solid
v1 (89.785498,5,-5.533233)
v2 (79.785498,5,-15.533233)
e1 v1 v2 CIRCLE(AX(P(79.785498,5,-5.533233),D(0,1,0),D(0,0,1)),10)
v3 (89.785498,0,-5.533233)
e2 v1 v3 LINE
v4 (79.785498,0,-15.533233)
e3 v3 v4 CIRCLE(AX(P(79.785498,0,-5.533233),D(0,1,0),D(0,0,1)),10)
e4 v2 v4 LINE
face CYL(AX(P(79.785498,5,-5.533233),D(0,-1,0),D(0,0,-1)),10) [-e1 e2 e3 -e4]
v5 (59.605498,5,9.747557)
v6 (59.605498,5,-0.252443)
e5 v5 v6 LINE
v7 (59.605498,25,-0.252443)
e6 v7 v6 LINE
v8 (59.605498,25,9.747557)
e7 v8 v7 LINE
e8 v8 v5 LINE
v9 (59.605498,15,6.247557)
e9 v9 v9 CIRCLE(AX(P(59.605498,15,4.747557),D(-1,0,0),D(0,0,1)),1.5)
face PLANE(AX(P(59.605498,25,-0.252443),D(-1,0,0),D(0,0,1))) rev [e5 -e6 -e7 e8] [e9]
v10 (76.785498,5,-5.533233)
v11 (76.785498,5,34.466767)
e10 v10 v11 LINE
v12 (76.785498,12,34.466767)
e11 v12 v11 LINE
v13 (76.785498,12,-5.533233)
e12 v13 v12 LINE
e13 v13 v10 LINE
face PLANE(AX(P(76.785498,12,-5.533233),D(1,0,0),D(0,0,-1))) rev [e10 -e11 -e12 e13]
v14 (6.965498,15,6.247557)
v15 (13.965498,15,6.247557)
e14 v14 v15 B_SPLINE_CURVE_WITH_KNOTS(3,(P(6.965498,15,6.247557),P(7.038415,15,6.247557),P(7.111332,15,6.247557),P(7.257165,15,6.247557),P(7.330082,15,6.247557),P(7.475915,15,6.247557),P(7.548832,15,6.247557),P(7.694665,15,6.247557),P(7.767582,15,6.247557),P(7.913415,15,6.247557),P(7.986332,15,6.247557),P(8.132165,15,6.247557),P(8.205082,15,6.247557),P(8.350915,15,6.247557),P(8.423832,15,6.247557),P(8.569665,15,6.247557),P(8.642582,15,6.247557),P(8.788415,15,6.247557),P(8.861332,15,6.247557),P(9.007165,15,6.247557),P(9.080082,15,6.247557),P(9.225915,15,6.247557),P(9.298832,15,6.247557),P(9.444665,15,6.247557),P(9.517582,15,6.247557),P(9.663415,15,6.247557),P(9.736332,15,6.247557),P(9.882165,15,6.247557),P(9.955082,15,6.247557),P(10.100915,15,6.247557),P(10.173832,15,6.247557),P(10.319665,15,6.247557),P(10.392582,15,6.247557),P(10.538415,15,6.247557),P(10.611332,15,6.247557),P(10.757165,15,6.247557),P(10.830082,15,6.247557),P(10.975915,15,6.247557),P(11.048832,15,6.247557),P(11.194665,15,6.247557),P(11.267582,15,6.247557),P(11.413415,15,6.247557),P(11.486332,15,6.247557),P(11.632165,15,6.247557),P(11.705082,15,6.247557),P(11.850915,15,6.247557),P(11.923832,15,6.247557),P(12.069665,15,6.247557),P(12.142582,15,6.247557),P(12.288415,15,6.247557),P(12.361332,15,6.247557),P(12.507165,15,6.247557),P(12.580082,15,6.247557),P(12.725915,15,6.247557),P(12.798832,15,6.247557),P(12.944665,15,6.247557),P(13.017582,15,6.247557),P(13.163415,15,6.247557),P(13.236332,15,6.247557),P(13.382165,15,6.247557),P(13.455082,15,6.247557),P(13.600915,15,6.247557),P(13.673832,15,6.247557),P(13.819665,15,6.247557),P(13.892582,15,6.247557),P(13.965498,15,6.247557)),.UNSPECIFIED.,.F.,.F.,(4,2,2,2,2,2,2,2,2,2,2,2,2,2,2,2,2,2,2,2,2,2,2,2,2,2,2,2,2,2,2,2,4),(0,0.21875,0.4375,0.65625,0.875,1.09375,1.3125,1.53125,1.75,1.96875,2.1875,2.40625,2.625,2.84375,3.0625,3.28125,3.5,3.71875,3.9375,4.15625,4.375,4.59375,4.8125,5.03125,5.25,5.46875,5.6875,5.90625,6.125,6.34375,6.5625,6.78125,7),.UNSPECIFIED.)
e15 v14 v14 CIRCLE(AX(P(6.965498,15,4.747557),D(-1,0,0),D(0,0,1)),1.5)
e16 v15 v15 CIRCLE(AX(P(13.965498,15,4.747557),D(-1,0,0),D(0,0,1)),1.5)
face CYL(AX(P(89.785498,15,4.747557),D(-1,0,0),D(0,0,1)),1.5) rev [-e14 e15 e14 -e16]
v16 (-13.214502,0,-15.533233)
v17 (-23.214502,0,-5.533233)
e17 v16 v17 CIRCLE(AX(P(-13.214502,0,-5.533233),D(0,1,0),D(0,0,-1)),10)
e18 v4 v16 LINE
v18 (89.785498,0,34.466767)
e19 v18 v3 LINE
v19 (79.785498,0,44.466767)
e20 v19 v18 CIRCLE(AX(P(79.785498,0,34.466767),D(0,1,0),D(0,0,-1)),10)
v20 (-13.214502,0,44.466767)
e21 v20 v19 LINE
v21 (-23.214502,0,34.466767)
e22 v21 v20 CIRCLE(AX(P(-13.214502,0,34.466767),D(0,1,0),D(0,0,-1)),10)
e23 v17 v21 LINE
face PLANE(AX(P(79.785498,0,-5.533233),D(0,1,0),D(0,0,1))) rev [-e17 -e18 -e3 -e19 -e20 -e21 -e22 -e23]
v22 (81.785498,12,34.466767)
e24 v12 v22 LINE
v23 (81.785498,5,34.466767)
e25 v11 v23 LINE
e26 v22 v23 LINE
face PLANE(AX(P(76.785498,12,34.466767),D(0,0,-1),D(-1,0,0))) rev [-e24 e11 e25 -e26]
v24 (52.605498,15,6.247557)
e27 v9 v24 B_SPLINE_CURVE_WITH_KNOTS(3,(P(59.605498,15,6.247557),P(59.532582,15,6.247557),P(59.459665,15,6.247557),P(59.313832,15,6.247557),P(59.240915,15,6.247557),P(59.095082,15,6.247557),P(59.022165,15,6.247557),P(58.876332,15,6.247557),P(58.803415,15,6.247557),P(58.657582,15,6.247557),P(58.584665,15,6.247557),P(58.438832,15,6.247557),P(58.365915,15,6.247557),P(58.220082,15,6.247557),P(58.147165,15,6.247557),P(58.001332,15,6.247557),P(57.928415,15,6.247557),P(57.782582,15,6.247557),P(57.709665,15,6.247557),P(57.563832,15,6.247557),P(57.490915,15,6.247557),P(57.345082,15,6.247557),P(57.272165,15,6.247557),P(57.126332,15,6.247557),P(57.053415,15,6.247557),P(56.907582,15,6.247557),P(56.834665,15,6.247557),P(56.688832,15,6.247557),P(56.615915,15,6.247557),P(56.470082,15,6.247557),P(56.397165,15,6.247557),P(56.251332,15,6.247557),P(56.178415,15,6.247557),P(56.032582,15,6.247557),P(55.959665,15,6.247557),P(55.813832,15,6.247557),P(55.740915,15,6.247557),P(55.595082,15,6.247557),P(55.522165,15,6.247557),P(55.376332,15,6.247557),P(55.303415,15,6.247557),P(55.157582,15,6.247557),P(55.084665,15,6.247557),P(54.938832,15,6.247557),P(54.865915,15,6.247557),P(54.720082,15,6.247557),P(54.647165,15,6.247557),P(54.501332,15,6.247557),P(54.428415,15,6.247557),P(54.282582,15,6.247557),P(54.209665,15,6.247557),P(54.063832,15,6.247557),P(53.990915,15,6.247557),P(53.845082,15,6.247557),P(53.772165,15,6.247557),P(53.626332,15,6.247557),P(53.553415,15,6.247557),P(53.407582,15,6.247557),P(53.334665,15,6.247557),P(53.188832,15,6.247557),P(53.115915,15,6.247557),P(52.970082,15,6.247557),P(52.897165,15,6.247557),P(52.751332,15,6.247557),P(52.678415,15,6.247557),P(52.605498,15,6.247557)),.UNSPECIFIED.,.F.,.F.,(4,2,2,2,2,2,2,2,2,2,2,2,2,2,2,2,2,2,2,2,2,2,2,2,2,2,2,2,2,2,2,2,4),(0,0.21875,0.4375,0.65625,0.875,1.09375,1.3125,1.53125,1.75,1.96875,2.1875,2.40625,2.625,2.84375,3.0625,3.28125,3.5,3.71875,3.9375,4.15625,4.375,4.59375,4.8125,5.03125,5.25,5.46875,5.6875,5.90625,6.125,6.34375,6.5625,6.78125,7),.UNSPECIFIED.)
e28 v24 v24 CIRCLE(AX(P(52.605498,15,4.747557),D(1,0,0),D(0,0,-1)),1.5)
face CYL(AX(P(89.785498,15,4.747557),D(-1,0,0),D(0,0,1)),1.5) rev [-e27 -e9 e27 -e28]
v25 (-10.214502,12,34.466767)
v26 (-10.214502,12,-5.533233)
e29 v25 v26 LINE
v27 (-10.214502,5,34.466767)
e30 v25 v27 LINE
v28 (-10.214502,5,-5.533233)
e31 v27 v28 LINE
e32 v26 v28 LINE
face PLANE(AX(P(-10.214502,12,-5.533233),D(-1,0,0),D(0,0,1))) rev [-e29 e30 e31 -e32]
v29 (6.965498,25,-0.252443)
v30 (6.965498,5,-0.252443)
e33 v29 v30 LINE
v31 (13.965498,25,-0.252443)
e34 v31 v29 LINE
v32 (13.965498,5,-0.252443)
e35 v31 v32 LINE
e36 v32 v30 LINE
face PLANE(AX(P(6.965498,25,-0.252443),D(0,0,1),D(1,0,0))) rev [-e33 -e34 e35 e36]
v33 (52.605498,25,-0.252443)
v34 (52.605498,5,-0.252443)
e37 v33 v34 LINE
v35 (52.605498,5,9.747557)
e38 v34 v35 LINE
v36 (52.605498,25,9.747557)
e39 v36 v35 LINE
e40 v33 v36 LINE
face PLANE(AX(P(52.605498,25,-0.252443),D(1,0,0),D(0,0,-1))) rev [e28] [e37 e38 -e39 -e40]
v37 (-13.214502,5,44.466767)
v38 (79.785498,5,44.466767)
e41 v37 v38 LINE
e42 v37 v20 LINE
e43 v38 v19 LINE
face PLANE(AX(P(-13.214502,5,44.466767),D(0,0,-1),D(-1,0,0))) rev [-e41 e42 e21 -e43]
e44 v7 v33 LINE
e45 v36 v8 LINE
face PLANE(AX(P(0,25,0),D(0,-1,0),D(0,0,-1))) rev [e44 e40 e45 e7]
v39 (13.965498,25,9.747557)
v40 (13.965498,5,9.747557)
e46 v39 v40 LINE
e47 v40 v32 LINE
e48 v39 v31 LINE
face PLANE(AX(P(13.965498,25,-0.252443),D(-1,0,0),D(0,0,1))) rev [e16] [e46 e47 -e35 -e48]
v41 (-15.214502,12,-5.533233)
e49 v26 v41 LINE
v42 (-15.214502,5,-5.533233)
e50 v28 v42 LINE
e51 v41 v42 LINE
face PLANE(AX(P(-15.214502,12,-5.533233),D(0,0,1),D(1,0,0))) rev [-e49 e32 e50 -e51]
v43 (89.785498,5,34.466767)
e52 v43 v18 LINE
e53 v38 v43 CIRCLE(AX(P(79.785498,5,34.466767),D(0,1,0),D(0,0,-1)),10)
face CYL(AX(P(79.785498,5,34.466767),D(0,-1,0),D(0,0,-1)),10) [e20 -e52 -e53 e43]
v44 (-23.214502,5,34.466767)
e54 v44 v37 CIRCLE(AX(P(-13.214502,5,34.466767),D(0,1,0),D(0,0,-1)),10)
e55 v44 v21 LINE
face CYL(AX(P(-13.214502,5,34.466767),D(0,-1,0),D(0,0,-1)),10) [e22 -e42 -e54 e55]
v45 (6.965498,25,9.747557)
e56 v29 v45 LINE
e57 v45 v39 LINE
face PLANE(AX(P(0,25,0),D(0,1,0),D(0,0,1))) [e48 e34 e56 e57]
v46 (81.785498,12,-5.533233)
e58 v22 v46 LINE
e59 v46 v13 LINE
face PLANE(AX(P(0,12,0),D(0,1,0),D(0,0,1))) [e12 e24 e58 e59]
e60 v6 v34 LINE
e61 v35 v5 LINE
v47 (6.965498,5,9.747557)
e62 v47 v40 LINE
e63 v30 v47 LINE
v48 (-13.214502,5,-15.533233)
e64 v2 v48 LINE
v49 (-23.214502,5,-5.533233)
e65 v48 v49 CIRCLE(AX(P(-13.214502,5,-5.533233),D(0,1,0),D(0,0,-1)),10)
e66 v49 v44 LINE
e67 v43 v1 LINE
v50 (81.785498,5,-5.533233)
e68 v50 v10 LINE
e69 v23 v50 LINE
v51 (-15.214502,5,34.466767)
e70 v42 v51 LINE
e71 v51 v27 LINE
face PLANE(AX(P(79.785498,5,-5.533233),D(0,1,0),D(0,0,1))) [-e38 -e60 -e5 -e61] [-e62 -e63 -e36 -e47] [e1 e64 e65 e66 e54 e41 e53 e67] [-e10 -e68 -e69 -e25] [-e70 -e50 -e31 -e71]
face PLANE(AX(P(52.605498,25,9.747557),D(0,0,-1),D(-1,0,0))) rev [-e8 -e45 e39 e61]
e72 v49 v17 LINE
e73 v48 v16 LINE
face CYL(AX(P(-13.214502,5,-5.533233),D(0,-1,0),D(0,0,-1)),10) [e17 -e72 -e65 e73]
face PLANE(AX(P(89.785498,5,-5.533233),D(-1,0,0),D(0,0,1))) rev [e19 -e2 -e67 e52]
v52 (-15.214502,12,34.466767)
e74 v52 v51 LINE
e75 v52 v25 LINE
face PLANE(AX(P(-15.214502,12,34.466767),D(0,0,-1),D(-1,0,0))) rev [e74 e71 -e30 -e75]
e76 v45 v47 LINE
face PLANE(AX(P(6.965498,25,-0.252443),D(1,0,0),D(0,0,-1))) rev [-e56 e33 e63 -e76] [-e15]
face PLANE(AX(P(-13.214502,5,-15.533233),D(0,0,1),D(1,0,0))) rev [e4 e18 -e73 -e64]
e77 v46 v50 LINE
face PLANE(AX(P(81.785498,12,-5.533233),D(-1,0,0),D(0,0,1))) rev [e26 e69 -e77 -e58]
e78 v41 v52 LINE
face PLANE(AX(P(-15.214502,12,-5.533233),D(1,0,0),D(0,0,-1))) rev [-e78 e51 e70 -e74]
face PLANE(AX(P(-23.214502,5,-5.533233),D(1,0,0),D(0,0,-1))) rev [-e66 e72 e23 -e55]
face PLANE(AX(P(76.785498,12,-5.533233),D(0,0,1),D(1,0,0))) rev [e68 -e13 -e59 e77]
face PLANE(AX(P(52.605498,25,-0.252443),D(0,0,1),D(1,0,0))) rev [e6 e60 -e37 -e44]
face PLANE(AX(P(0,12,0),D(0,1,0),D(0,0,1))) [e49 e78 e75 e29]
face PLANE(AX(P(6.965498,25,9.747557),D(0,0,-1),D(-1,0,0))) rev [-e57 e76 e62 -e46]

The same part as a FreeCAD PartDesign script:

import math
import FreeCAD as App
import Part
import Sketcher

doc = App.newDocument("Part")
body = doc.addObject("PartDesign::Body", "Body")

# Sketch on XZ plane
sketch1 = body.newObject("Sketcher::SketchObject", "Sketch")
sketch1.AttachmentSupport = (doc.getObject("XZ_Plane"), [""])
sketch1.MapMode = "FlatFace"
sketch1.addGeometry([
    Part.LineSegment(App.Vector(80, -16, 0), App.Vector(-13, -16, 0)),  # 0
    Part.ArcOfCircle(Part.Circle(App.Vector(-13, -6, 0), App.Vector(0, 0, 1), 10), math.radians(-180), math.radians(-90)),  # 1
    Part.LineSegment(App.Vector(-23, -6, 0), App.Vector(-23, 34, 0)),  # 2
    Part.ArcOfCircle(Part.Circle(App.Vector(-13, 34, 0), App.Vector(0, 0, 1), 10), math.radians(90), math.radians(180)),  # 3
    Part.LineSegment(App.Vector(-13, 44, 0), App.Vector(80, 44, 0)),  # 4
    Part.ArcOfCircle(Part.Circle(App.Vector(80, 34, 0), App.Vector(0, 0, 1), 10), math.radians(0), math.radians(90)),  # 5
    Part.LineSegment(App.Vector(90, 34, 0), App.Vector(90, -6, 0)),  # 6
    Part.ArcOfCircle(Part.Circle(App.Vector(80, -6, 0), App.Vector(0, 0, 1), 10), math.radians(-90), math.radians(0)),  # 7
], False)
sketch1.addConstraint([
    Sketcher.Constraint("Tangent", 0, 2, 1, 2),
    Sketcher.Constraint("Tangent", 1, 1, 2, 1),
    Sketcher.Constraint("Tangent", 2, 2, 3, 2),
    Sketcher.Constraint("Tangent", 3, 1, 4, 1),
    Sketcher.Constraint("Tangent", 4, 2, 5, 2),
    Sketcher.Constraint("Tangent", 5, 1, 6, 1),
    Sketcher.Constraint("Tangent", 6, 2, 7, 2),
    Sketcher.Constraint("Tangent", 7, 1, 0, 1),
    Sketcher.Constraint("Horizontal", 0),
    Sketcher.Constraint("Vertical", 2),
    Sketcher.Constraint("Horizontal", 4),
    Sketcher.Constraint("Vertical", 6),
    Sketcher.Constraint("Equal", 1, 3),
    Sketcher.Constraint("Equal", 3, 5),
    Sketcher.Constraint("Equal", 5, 7),
    Sketcher.Constraint("Radius", 1, 10.0),
    Sketcher.Constraint("DistanceX", 0, 2, 0, 1, 93.0),
    Sketcher.Constraint("DistanceY", 2, 1, 2, 2, 40.0),
    Sketcher.Constraint("DistanceX", 1, 3, -1, 1, 13.214502),
    Sketcher.Constraint("DistanceY", 1, 3, -1, 1, 5.533233),
])
pad1 = body.newObject("PartDesign::Pad", "Pad")
pad1.Profile = sketch1
pad1.Length = 5
pad1.Reversed = True

# Sketch on XZ plane
sketch2 = body.newObject("Sketcher::SketchObject", "Sketch001")
sketch2.AttachmentSupport = (doc.getObject("XZ_Plane"), [""])
sketch2.MapMode = "FlatFace"
sketch2.AttachmentOffset = App.Placement(App.Vector(0, 0, -5), App.Rotation())
sketch2.addGeometry([
    Part.LineSegment(App.Vector(53, 0, 0), App.Vector(53, 10, 0)),  # 0
    Part.LineSegment(App.Vector(53, 10, 0), App.Vector(60, 10, 0)),  # 1
    Part.LineSegment(App.Vector(60, 10, 0), App.Vector(60, 0, 0)),  # 2
    Part.LineSegment(App.Vector(60, 0, 0), App.Vector(53, 0, 0)),  # 3
    Part.LineSegment(App.Vector(7, 0, 0), App.Vector(7, 10, 0)),  # 4
    Part.LineSegment(App.Vector(7, 10, 0), App.Vector(14, 10, 0)),  # 5
    Part.LineSegment(App.Vector(14, 10, 0), App.Vector(14, 0, 0)),  # 6
    Part.LineSegment(App.Vector(14, 0, 0), App.Vector(7, 0, 0)),  # 7
], False)
sketch2.addConstraint([
    Sketcher.Constraint("Coincident", 0, 2, 1, 1),
    Sketcher.Constraint("Coincident", 1, 2, 2, 1),
    Sketcher.Constraint("Coincident", 2, 2, 3, 1),
    Sketcher.Constraint("Coincident", 3, 2, 0, 1),
    Sketcher.Constraint("Coincident", 4, 2, 5, 1),
    Sketcher.Constraint("Coincident", 5, 2, 6, 1),
    Sketcher.Constraint("Coincident", 6, 2, 7, 1),
    Sketcher.Constraint("Coincident", 7, 2, 4, 1),
    Sketcher.Constraint("Vertical", 0),
    Sketcher.Constraint("Horizontal", 1),
    Sketcher.Constraint("Vertical", 2),
    Sketcher.Constraint("Horizontal", 3),
    Sketcher.Constraint("Vertical", 4),
    Sketcher.Constraint("Horizontal", 5),
    Sketcher.Constraint("Vertical", 6),
    Sketcher.Constraint("Horizontal", 7),
    Sketcher.Constraint("Horizontal", 1, 2, 4, 2),
    Sketcher.Constraint("Horizontal", 3, 2, 6, 2),
    Sketcher.Constraint("Equal", 3, 5),
    Sketcher.Constraint("DistanceX", 1, 1, 1, 2, 7.0),
    Sketcher.Constraint("DistanceY", 0, 1, 0, 2, 10.0),
    Sketcher.Constraint("DistanceX", 4, 2, 0, 2, 45.64),
    Sketcher.Constraint("DistanceX", -1, 1, 0, 2, 52.605498),
    Sketcher.Constraint("DistanceY", -1, 1, 0, 2, 9.747557),
])
pad2 = body.newObject("PartDesign::Pad", "Pad001")
pad2.Profile = sketch2
pad2.Length = 20
pad2.Reversed = True

# Sketch on YZ plane
sketch3 = body.newObject("Sketcher::SketchObject", "Sketch002")
sketch3.AttachmentSupport = (doc.getObject("YZ_Plane"), [""])
sketch3.MapMode = "FlatFace"
sketch3.AttachmentOffset = App.Placement(App.Vector(0, 0, 6.965498), App.Rotation())
sketch3.addGeometry(Part.Circle(App.Vector(15, 4.7, 0), App.Vector(0, 0, 1), 1.5), False)
sketch3.addConstraint([
    Sketcher.Constraint("Diameter", 0, 3.0),
    Sketcher.Constraint("DistanceX", -1, 1, 0, 3, 15.0),
    Sketcher.Constraint("DistanceY", -1, 1, 0, 3, 4.747557),
])
pocket1 = body.newObject("PartDesign::Pocket", "Pocket")
pocket1.Profile = sketch3
pocket1.Type = "ThroughAll"
pocket1.Reversed = True

# Sketch on XZ plane
sketch4 = body.newObject("Sketcher::SketchObject", "Sketch003")
sketch4.AttachmentSupport = (doc.getObject("XZ_Plane"), [""])
sketch4.MapMode = "FlatFace"
sketch4.AttachmentOffset = App.Placement(App.Vector(0, 0, -5), App.Rotation())
sketch4.addGeometry([
    Part.LineSegment(App.Vector(-15, -6, 0), App.Vector(-15, 34, 0)),  # 0
    Part.LineSegment(App.Vector(-15, 34, 0), App.Vector(-10, 34, 0)),  # 1
    Part.LineSegment(App.Vector(-10, 34, 0), App.Vector(-10, -6, 0)),  # 2
    Part.LineSegment(App.Vector(-10, -6, 0), App.Vector(-15, -6, 0)),  # 3
    Part.LineSegment(App.Vector(77, -6, 0), App.Vector(77, 34, 0)),  # 4
    Part.LineSegment(App.Vector(77, 34, 0), App.Vector(82, 34, 0)),  # 5
    Part.LineSegment(App.Vector(82, 34, 0), App.Vector(82, -6, 0)),  # 6
    Part.LineSegment(App.Vector(82, -6, 0), App.Vector(77, -6, 0)),  # 7
], False)
sketch4.addConstraint([
    Sketcher.Constraint("Coincident", 0, 2, 1, 1),
    Sketcher.Constraint("Coincident", 1, 2, 2, 1),
    Sketcher.Constraint("Coincident", 2, 2, 3, 1),
    Sketcher.Constraint("Coincident", 3, 2, 0, 1),
    Sketcher.Constraint("Coincident", 4, 2, 5, 1),
    Sketcher.Constraint("Coincident", 5, 2, 6, 1),
    Sketcher.Constraint("Coincident", 6, 2, 7, 1),
    Sketcher.Constraint("Coincident", 7, 2, 4, 1),
    Sketcher.Constraint("Vertical", 0),
    Sketcher.Constraint("Horizontal", 1),
    Sketcher.Constraint("Vertical", 2),
    Sketcher.Constraint("Horizontal", 3),
    Sketcher.Constraint("Vertical", 4),
    Sketcher.Constraint("Horizontal", 5),
    Sketcher.Constraint("Vertical", 6),
    Sketcher.Constraint("Horizontal", 7),
    Sketcher.Constraint("Horizontal", 1, 2, 4, 2),
    Sketcher.Constraint("Horizontal", 3, 2, 6, 2),
    Sketcher.Constraint("Equal", 3, 5),
    Sketcher.Constraint("DistanceX", 1, 1, 1, 2, 5.0),
    Sketcher.Constraint("DistanceY", 0, 1, 0, 2, 40.0),
    Sketcher.Constraint("DistanceX", 1, 2, 4, 2, 87.0),
    Sketcher.Constraint("DistanceX", 0, 2, -1, 1, 15.214502),
    Sketcher.Constraint("DistanceY", -1, 1, 0, 2, 34.466767),
])
pad3 = body.newObject("PartDesign::Pad", "Pad002")
pad3.Profile = sketch4
pad3.Length = 7
pad3.Reversed = True

doc.recompute()
